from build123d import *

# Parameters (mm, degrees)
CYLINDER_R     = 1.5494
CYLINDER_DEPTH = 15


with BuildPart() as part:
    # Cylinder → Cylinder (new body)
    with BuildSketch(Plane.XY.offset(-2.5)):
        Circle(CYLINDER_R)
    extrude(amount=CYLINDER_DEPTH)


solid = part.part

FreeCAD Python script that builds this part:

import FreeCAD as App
import Part
import Sketcher

doc = App.newDocument("Part")
body = doc.addObject("PartDesign::Body", "Body")

# Sketch on XY plane
sketch1 = doc.addObject("Sketcher::SketchObject", "Sketch")
body.addObject(sketch1)
sketch1.AttachmentSupport = (doc.XY_Plane, [""])
sketch1.MapMode = "FlatFace"
sketch1.AttachmentOffset = App.Placement(App.Vector(0, 0, -2.5), App.Rotation())
sketch1.addGeometry(Part.Circle(App.Vector(0, 0, 0), App.Vector(0, 0, 1), 1.5), False)
sketch1.addConstraint(Sketcher.Constraint("Coincident", 0, 3, -1, 1))
sketch1.addConstraint(Sketcher.Constraint("Diameter", 0, 3.0988))
pad1 = doc.addObject("PartDesign::Pad", "Pad")
body.addObject(pad1)
pad1.Profile = sketch1
pad1.Length = 15

doc.recompute()
